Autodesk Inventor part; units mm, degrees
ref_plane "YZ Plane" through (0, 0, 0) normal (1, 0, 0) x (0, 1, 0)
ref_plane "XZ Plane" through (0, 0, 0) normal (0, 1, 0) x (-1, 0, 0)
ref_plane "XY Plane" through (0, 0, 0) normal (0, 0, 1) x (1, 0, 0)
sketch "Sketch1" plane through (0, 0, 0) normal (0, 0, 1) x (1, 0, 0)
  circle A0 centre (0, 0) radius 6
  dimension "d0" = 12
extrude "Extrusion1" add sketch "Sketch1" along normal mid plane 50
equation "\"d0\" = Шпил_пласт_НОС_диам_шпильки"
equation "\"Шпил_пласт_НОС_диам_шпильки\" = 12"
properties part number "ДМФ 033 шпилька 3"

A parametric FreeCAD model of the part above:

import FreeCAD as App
import Part
import Sketcher

V = App.Vector
Q = App.Units.Quantity

doc = App.newDocument("Part")
params = doc.addObject("Spreadsheet::Sheet", "Params")
for row, (alias, value) in enumerate([
    ("sketch1_diameter", "12 mm"),
    ("pad1_length", "50 mm"),
], start=1):
    params.set(f"A{row}", alias)
    params.set(f"B{row}", "=" + value)
    params.setAlias(f"B{row}", alias)

body = doc.addObject("PartDesign::Body", "Body")

# Sketch on XY plane
sketch1 = body.newObject("Sketcher::SketchObject", "Sketch")
sketch1.AttachmentSupport = (doc.getObject("XY_Plane"), [""])
sketch1.MapMode = "FlatFace"
sketch1.addGeometry(Part.Circle(V(0, 0, 0), V(0, 0, 1), 6), False)
sketch1.addConstraint([
    Sketcher.Constraint("Coincident", 0, 3, -1, 1),
    Sketcher.Constraint("Diameter", 0, Q("12 mm")),
])
sketch1.setExpression("Constraints[1]", "Params.sketch1_diameter")
pad1 = body.newObject("PartDesign::Pad", "Pad")
pad1.Profile = sketch1
pad1.setExpression("Length", "Params.pad1_length")
pad1.Midplane = True

doc.recompute()
